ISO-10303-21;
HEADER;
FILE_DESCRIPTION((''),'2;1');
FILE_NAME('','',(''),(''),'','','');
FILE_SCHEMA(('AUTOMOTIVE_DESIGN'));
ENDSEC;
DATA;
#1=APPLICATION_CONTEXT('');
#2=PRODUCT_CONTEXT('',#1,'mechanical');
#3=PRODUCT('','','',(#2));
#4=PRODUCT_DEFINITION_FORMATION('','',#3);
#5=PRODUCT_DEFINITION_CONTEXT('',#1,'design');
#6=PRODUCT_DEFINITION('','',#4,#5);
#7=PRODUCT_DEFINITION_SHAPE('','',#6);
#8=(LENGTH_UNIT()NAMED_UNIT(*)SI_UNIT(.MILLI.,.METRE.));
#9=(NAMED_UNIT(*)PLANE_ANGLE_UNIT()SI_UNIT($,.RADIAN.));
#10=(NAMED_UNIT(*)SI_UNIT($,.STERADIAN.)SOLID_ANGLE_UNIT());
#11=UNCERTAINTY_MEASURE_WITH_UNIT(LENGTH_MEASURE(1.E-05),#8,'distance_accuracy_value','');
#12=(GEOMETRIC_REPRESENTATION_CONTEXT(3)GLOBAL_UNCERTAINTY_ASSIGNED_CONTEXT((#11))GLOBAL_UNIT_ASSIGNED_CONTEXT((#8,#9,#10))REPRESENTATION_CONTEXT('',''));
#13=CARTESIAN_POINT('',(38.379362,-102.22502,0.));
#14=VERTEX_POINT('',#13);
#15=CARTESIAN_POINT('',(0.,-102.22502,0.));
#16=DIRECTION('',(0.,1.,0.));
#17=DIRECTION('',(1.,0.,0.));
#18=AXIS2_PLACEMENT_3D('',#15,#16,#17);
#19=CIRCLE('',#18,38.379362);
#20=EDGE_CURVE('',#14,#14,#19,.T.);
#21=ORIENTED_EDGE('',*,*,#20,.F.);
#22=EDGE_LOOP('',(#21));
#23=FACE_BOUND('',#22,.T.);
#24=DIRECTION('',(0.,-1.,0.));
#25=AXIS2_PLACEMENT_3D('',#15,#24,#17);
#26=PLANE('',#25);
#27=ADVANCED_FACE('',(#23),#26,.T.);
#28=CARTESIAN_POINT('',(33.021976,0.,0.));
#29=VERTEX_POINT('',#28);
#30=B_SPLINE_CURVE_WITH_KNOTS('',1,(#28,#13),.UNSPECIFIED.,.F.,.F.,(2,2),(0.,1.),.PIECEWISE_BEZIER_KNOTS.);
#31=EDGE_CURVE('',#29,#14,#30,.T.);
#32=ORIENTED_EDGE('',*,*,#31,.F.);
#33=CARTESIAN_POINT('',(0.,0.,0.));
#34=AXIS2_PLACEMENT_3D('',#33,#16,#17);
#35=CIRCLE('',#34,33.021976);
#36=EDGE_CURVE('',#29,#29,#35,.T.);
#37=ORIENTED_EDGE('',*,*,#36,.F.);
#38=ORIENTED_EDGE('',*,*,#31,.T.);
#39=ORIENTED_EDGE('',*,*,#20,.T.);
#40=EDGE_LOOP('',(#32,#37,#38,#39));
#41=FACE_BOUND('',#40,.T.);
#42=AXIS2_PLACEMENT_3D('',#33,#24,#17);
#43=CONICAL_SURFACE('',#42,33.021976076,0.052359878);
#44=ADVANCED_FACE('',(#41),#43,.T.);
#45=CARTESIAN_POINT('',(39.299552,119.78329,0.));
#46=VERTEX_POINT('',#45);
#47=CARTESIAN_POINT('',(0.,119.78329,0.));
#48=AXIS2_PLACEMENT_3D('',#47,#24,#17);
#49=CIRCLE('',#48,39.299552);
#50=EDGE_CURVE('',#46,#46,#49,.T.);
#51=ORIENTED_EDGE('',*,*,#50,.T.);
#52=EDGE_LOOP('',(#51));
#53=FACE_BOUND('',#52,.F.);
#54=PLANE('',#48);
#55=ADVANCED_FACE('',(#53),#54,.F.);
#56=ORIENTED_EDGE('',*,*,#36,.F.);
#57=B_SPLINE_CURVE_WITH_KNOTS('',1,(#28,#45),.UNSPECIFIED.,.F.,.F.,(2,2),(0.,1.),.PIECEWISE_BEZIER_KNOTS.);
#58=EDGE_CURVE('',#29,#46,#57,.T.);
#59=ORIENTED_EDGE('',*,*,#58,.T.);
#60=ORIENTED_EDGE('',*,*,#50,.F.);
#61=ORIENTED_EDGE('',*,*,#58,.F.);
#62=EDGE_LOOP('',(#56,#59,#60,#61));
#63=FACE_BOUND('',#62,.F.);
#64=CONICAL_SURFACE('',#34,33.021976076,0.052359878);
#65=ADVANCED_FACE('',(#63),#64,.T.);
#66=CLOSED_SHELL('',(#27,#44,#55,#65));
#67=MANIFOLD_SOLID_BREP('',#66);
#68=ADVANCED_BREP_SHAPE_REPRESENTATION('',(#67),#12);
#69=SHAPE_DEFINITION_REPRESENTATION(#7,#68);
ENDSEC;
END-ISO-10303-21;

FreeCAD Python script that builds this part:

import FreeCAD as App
import Part
import Sketcher

doc = App.newDocument("Part")
body = doc.addObject("PartDesign::Body", "Body")

# Sketch on XZ plane
sketch1 = body.newObject("Sketcher::SketchObject", "Sketch")
sketch1.AttachmentSupport = (doc.getObject("XZ_Plane"), [""])
sketch1.MapMode = "FlatFace"
sketch1.addGeometry(Part.Circle(App.Vector(0, 0, 0), App.Vector(0, 0, 1), 33), False)
sketch1.addConstraint(Sketcher.Constraint("Coincident", 0, 3, -1, 1))
sketch1.addConstraint(Sketcher.Constraint("Diameter", 0, 66.043952))
pad1 = body.newObject("PartDesign::Pad", "Pad")
pad1.Profile = sketch1
pad1.Length = 119.78329
pad1.Reversed = True
pad1.TaperAngle = 3
pad2 = body.newObject("PartDesign::Pad", "Pad001")
pad2.Profile = sketch1
pad2.Length = 102.22502
pad2.TaperAngle = 3

doc.recompute()
